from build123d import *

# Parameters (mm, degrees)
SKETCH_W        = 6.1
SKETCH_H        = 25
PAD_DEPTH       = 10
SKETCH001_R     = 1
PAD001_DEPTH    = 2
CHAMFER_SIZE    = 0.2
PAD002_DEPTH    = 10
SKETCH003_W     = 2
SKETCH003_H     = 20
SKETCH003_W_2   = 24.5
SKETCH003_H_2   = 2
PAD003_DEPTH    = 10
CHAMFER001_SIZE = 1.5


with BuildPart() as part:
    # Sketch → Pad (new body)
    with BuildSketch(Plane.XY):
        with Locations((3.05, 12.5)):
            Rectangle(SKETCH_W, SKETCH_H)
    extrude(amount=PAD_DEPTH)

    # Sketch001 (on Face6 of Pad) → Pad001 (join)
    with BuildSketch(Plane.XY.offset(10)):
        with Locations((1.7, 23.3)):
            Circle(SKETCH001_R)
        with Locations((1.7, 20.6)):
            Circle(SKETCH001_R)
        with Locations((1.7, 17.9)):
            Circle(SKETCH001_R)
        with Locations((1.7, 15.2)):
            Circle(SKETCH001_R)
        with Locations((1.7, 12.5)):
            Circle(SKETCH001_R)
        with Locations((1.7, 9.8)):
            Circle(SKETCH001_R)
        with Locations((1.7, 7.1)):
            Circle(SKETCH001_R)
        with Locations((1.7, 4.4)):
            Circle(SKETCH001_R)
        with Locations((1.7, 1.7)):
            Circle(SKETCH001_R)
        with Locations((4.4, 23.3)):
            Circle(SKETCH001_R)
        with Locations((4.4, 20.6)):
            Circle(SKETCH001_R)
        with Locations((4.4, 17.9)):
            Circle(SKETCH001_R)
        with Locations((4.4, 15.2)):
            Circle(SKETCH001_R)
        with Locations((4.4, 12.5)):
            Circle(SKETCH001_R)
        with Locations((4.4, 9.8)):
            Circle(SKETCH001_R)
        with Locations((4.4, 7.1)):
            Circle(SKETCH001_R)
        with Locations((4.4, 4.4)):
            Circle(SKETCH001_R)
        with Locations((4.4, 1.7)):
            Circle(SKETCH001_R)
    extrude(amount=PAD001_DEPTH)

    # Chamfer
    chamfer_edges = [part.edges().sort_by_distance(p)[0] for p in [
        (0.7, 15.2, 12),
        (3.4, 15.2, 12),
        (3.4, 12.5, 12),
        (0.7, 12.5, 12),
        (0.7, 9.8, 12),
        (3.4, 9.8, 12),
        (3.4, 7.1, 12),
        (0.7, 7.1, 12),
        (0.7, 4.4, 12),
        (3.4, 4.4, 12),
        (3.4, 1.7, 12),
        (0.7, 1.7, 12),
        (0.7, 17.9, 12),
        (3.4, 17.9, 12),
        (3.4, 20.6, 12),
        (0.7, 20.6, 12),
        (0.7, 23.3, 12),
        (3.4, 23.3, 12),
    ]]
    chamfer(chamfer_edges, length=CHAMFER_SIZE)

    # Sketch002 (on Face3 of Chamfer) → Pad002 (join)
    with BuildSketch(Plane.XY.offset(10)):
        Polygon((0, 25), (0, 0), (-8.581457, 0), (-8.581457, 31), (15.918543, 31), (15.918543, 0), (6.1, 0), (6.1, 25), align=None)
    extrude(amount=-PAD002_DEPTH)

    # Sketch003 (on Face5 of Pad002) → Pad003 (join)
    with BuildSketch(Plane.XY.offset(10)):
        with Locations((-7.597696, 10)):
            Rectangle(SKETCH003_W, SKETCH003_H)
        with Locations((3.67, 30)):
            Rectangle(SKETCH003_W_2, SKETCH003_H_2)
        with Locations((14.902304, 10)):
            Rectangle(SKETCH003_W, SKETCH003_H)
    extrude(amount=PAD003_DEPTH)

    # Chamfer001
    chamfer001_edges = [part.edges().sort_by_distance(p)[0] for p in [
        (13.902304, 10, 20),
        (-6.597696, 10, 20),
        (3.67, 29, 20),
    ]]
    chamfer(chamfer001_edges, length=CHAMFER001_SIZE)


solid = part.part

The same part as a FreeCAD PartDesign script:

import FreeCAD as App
import Part
import Sketcher
from FreeCAD import Vector
Q = App.Units.Quantity


def edges_at(feature, points):
    """Names of the edges that pass closest to the given points."""
    edges = feature.Shape.Edges
    near = lambda p: min(range(len(edges)), key=lambda i: edges[i].distToShape(Part.Vertex(*p))[0])
    return sorted({f"Edge{near(p) + 1}" for p in points})

doc = App.newDocument("Part")
body = doc.addObject("PartDesign::Body", "Body")

# Sketch on XY plane
sketch1 = doc.addObject("Sketcher::SketchObject", "Sketch")
body.addObject(sketch1)
sketch1.AttachmentSupport = (doc.XY_Plane, [""])
sketch1.MapMode = "FlatFace"
sketch1.addGeometry(Part.LineSegment(Vector(0, 25, 0), Vector(0, 0, 0)), False)
sketch1.addGeometry(Part.LineSegment(Vector(0, 0, 0), Vector(6.1, 0, 0)), False)
sketch1.addGeometry(Part.LineSegment(Vector(6.1, 0, 0), Vector(6.1, 25, 0)), False)
sketch1.addGeometry(Part.LineSegment(Vector(6.1, 25, 0), Vector(0, 25, 0)), False)
sketch1.addConstraint(Sketcher.Constraint("Coincident", 0, 2, 1, 1))
sketch1.addConstraint(Sketcher.Constraint("Coincident", 1, 2, 2, 1))
sketch1.addConstraint(Sketcher.Constraint("Coincident", 2, 2, 3, 1))
sketch1.addConstraint(Sketcher.Constraint("Coincident", 3, 2, 0, 1))
sketch1.addConstraint(Sketcher.Constraint("Vertical", 0))
sketch1.addConstraint(Sketcher.Constraint("Horizontal", 1))
sketch1.addConstraint(Sketcher.Constraint("Vertical", 2))
sketch1.addConstraint(Sketcher.Constraint("Horizontal", 3))
sketch1.addConstraint(Sketcher.Constraint("Coincident", 0, 2, -1, 1))
sketch1.addConstraint(Sketcher.Constraint("DistanceY", 0, 2, 0, 1, Q("25 mm")))
sketch1.addConstraint(Sketcher.Constraint("DistanceX", 1, 1, 1, 2, Q("6.1 mm")))
pad1 = doc.addObject("PartDesign::Pad", "Pad")
body.addObject(pad1)
pad1.Profile = sketch1
pad1.Length = 10

# Sketch on XY plane
sketch2 = doc.addObject("Sketcher::SketchObject", "Sketch001")
body.addObject(sketch2)
sketch2.AttachmentSupport = (doc.XY_Plane, [""])
sketch2.MapMode = "FlatFace"
sketch2.AttachmentOffset = App.Placement(Vector(0, 0, 10), App.Rotation())
sketch2.addGeometry(Part.Circle(Vector(1.7, 23.3, 0), Vector(0, 0, 1), 1), False)
sketch2.addGeometry(Part.Circle(Vector(1.7, 20.6, 0), Vector(0, 0, 1), 1), False)
sketch2.addGeometry(Part.Circle(Vector(1.7, 17.9, 0), Vector(0, 0, 1), 1), False)
sketch2.addGeometry(Part.Circle(Vector(1.7, 15.2, 0), Vector(0, 0, 1), 1), False)
sketch2.addGeometry(Part.Circle(Vector(1.7, 12.5, 0), Vector(0, 0, 1), 1), False)
sketch2.addGeometry(Part.Circle(Vector(1.7, 9.8, 0), Vector(0, 0, 1), 1), False)
sketch2.addGeometry(Part.Circle(Vector(1.7, 7.1, 0), Vector(0, 0, 1), 1), False)
sketch2.addGeometry(Part.Circle(Vector(1.7, 4.4, 0), Vector(0, 0, 1), 1), False)
sketch2.addGeometry(Part.Circle(Vector(1.7, 1.7, 0), Vector(0, 0, 1), 1), False)
sketch2.addGeometry(Part.Circle(Vector(4.4, 23.3, 0), Vector(0, 0, 1), 1), False)
sketch2.addGeometry(Part.Circle(Vector(4.4, 20.6, 0), Vector(0, 0, 1), 1), False)
sketch2.addGeometry(Part.Circle(Vector(4.4, 17.9, 0), Vector(0, 0, 1), 1), False)
sketch2.addGeometry(Part.Circle(Vector(4.4, 15.2, 0), Vector(0, 0, 1), 1), False)
sketch2.addGeometry(Part.Circle(Vector(4.4, 12.5, 0), Vector(0, 0, 1), 1), False)
sketch2.addGeometry(Part.Circle(Vector(4.4, 9.8, 0), Vector(0, 0, 1), 1), False)
sketch2.addGeometry(Part.Circle(Vector(4.4, 7.1, 0), Vector(0, 0, 1), 1), False)
sketch2.addGeometry(Part.Circle(Vector(4.4, 4.4, 0), Vector(0, 0, 1), 1), False)
sketch2.addGeometry(Part.Circle(Vector(4.4, 1.7, 0), Vector(0, 0, 1), 1), False)
sketch2.addConstraint(Sketcher.Constraint("Equal", 0, 1))
sketch2.addConstraint(Sketcher.Constraint("Equal", 1, 2))
sketch2.addConstraint(Sketcher.Constraint("Equal", 2, 3))
sketch2.addConstraint(Sketcher.Constraint("Equal", 3, 4))
sketch2.addConstraint(Sketcher.Constraint("Equal", 4, 5))
sketch2.addConstraint(Sketcher.Constraint("Equal", 5, 6))
sketch2.addConstraint(Sketcher.Constraint("Equal", 6, 7))
sketch2.addConstraint(Sketcher.Constraint("Equal", 7, 8))
sketch2.addConstraint(Sketcher.Constraint("Equal", 8, 9))
sketch2.addConstraint(Sketcher.Constraint("Equal", 9, 10))
sketch2.addConstraint(Sketcher.Constraint("Equal", 10, 11))
sketch2.addConstraint(Sketcher.Constraint("Equal", 11, 12))
sketch2.addConstraint(Sketcher.Constraint("Equal", 12, 13))
sketch2.addConstraint(Sketcher.Constraint("Equal", 13, 14))
sketch2.addConstraint(Sketcher.Constraint("Equal", 14, 15))
sketch2.addConstraint(Sketcher.Constraint("Equal", 15, 16))
sketch2.addConstraint(Sketcher.Constraint("Equal", 16, 17))
sketch2.addConstraint(Sketcher.Constraint("Horizontal", 0, 3, 9, 3))
sketch2.addConstraint(Sketcher.Constraint("Horizontal", 1, 3, 10, 3))
sketch2.addConstraint(Sketcher.Constraint("Horizontal", 2, 3, 11, 3))
sketch2.addConstraint(Sketcher.Constraint("Horizontal", 3, 3, 12, 3))
sketch2.addConstraint(Sketcher.Constraint("Horizontal", 4, 3, 13, 3))
sketch2.addConstraint(Sketcher.Constraint("Horizontal", 5, 3, 14, 3))
sketch2.addConstraint(Sketcher.Constraint("Horizontal", 6, 3, 15, 3))
sketch2.addConstraint(Sketcher.Constraint("Horizontal", 7, 3, 16, 3))
sketch2.addConstraint(Sketcher.Constraint("Horizontal", 8, 3, 17, 3))
sketch2.addConstraint(Sketcher.Constraint("Vertical", 0, 3, 1, 3))
sketch2.addConstraint(Sketcher.Constraint("Vertical", 1, 3, 2, 3))
sketch2.addConstraint(Sketcher.Constraint("Vertical", 2, 3, 3, 3))
sketch2.addConstraint(Sketcher.Constraint("Vertical", 3, 3, 4, 3))
sketch2.addConstraint(Sketcher.Constraint("Vertical", 4, 3, 5, 3))
sketch2.addConstraint(Sketcher.Constraint("Vertical", 5, 3, 6, 3))
sketch2.addConstraint(Sketcher.Constraint("Vertical", 6, 3, 7, 3))
sketch2.addConstraint(Sketcher.Constraint("Vertical", 7, 3, 8, 3))
sketch2.addConstraint(Sketcher.Constraint("Vertical", 9, 3, 10, 3))
sketch2.addConstraint(Sketcher.Constraint("Vertical", 10, 3, 11, 3))
sketch2.addConstraint(Sketcher.Constraint("Vertical", 11, 3, 12, 3))
sketch2.addConstraint(Sketcher.Constraint("Vertical", 12, 3, 13, 3))
sketch2.addConstraint(Sketcher.Constraint("Vertical", 13, 3, 14, 3))
sketch2.addConstraint(Sketcher.Constraint("Vertical", 14, 3, 15, 3))
sketch2.addConstraint(Sketcher.Constraint("Vertical", 15, 3, 16, 3))
sketch2.addConstraint(Sketcher.Constraint("Vertical", 16, 3, 17, 3))
sketch2.addConstraint(Sketcher.Constraint("Diameter", 0, Q("2 mm")))
sketch2.addConstraint(Sketcher.Constraint("DistanceX", -1, 1, 0, 3, Q("1.7 mm")))
sketch2.addConstraint(Sketcher.Constraint("DistanceY", -1, 1, 0, 3, Q("23.3 mm")))
sketch2.addConstraint(Sketcher.Constraint("DistanceY", -1, 1, 1, 3, Q("20.6 mm")))
sketch2.addConstraint(Sketcher.Constraint("DistanceY", -1, 1, 2, 3, Q("17.9 mm")))
sketch2.addConstraint(Sketcher.Constraint("DistanceY", -1, 1, 3, 3, Q("15.2 mm")))
sketch2.addConstraint(Sketcher.Constraint("DistanceY", -1, 1, 4, 3, Q("12.5 mm")))
sketch2.addConstraint(Sketcher.Constraint("DistanceY", -1, 1, 5, 3, Q("9.8 mm")))
sketch2.addConstraint(Sketcher.Constraint("DistanceY", -1, 1, 6, 3, Q("7.1 mm")))
sketch2.addConstraint(Sketcher.Constraint("DistanceY", -1, 1, 7, 3, Q("4.4 mm")))
sketch2.addConstraint(Sketcher.Constraint("DistanceY", -1, 1, 8, 3, Q("1.7 mm")))
sketch2.addConstraint(Sketcher.Constraint("DistanceX", -1, 1, 9, 3, Q("4.4 mm")))
pad2 = doc.addObject("PartDesign::Pad", "Pad001")
body.addObject(pad2)
pad2.Profile = sketch2
pad2.Length = 2
doc.recompute()

chamfer = doc.addObject("PartDesign::Chamfer", "Chamfer")
body.addObject(chamfer)
chamfer.Base = (pad2, edges_at(pad2, [
    (0.7, 15.2, 12),
    (3.4, 15.2, 12),
    (3.4, 12.5, 12),
    (0.7, 12.5, 12),
    (0.7, 9.8, 12),
    (3.4, 9.8, 12),
    (3.4, 7.1, 12),
    (0.7, 7.1, 12),
    (0.7, 4.4, 12),
    (3.4, 4.4, 12),
    (3.4, 1.7, 12),
    (0.7, 1.7, 12),
    (0.7, 17.9, 12),
    (3.4, 17.9, 12),
    (3.4, 20.6, 12),
    (0.7, 20.6, 12),
    (0.7, 23.3, 12),
    (3.4, 23.3, 12),
]))
chamfer.Size = 0.2

# Sketch on XY plane
sketch3 = doc.addObject("Sketcher::SketchObject", "Sketch002")
body.addObject(sketch3)
sketch3.AttachmentSupport = (doc.XY_Plane, [""])
sketch3.MapMode = "FlatFace"
sketch3.AttachmentOffset = App.Placement(Vector(0, 0, 10), App.Rotation())
sketch3.addGeometry(Part.LineSegment(Vector(0, 0, 0), Vector(0, 25, 0)), False)
sketch3.addGeometry(Part.LineSegment(Vector(0, 25, 0), Vector(6.1, 25, 0)), False)
sketch3.addGeometry(Part.LineSegment(Vector(6.1, 25, 0), Vector(6.1, 0, 0)), False)
sketch3.addGeometry(Part.LineSegment(Vector(6.1, 0, 0), Vector(15.918543, 0, 0)), False)
sketch3.addGeometry(Part.LineSegment(Vector(15.918543, 0, 0), Vector(15.918543, 31, 0)), False)
sketch3.addGeometry(Part.LineSegment(Vector(15.918543, 31, 0), Vector(-8.581457, 31, 0)), False)
sketch3.addGeometry(Part.LineSegment(Vector(-8.581457, 31, 0), Vector(-8.581457, 0, 0)), False)
sketch3.addGeometry(Part.LineSegment(Vector(-8.581457, 0, 0), Vector(0, 0, 0)), False)
sketch3.addConstraint(Sketcher.Constraint("Coincident", 0, 2, 1, 1))
sketch3.addConstraint(Sketcher.Constraint("Coincident", 1, 2, 2, 1))
sketch3.addConstraint(Sketcher.Constraint("Coincident", 2, 2, 3, 1))
sketch3.addConstraint(Sketcher.Constraint("Coincident", 3, 2, 4, 1))
sketch3.addConstraint(Sketcher.Constraint("Coincident", 4, 2, 5, 1))
sketch3.addConstraint(Sketcher.Constraint("Coincident", 5, 2, 6, 1))
sketch3.addConstraint(Sketcher.Constraint("Coincident", 6, 2, 7, 1))
sketch3.addConstraint(Sketcher.Constraint("Coincident", 7, 2, 0, 1))
sketch3.addConstraint(Sketcher.Constraint("Vertical", 0))
sketch3.addConstraint(Sketcher.Constraint("Horizontal", 1))
sketch3.addConstraint(Sketcher.Constraint("Vertical", 2))
sketch3.addConstraint(Sketcher.Constraint("Horizontal", 3))
sketch3.addConstraint(Sketcher.Constraint("Vertical", 4))
sketch3.addConstraint(Sketcher.Constraint("Horizontal", 5))
sketch3.addConstraint(Sketcher.Constraint("Vertical", 6))
sketch3.addConstraint(Sketcher.Constraint("Horizontal", 7))
sketch3.addConstraint(Sketcher.Constraint("Coincident", 7, 2, -1, 1))
sketch3.addConstraint(Sketcher.Constraint("PointOnObject", 2, 2, -1))
sketch3.addConstraint(Sketcher.Constraint("DistanceY", 0, 1, 0, 2, Q("25 mm")))
sketch3.addConstraint(Sketcher.Constraint("DistanceY", 4, 1, 4, 2, Q("31 mm")))
sketch3.addConstraint(Sketcher.Constraint("DistanceX", 1, 1, 1, 2, Q("6.1 mm")))
sketch3.addConstraint(Sketcher.Constraint("DistanceX", 5, 2, 5, 1, Q("24.5 mm")))
sketch3.addConstraint(Sketcher.Constraint("DistanceX", 3, 1, 3, 2, Q("9.818543 mm")))
pad3 = doc.addObject("PartDesign::Pad", "Pad002")
body.addObject(pad3)
pad3.Profile = sketch3
pad3.Length = 10
pad3.Reversed = True

# Sketch on XY plane
sketch4 = doc.addObject("Sketcher::SketchObject", "Sketch003")
body.addObject(sketch4)
sketch4.AttachmentSupport = (doc.XY_Plane, [""])
sketch4.MapMode = "FlatFace"
sketch4.AttachmentOffset = App.Placement(Vector(0, 0, 10), App.Rotation())
sketch4.addGeometry(Part.LineSegment(Vector(-8.597696, 20, 0), Vector(-8.597696, 0, 0)), False)
sketch4.addGeometry(Part.LineSegment(Vector(-8.597696, 0, 0), Vector(-6.597696, 0, 0)), False)
sketch4.addGeometry(Part.LineSegment(Vector(-6.597696, 0, 0), Vector(-6.597696, 20, 0)), False)
sketch4.addGeometry(Part.LineSegment(Vector(-6.597696, 20, 0), Vector(-8.597696, 20, 0)), False)
sketch4.addGeometry(Part.LineSegment(Vector(-8.58, 31, 0), Vector(-8.58, 29, 0)), False)
sketch4.addGeometry(Part.LineSegment(Vector(-8.58, 29, 0), Vector(15.92, 29, 0)), False)
sketch4.addGeometry(Part.LineSegment(Vector(15.92, 29, 0), Vector(15.92, 31, 0)), False)
sketch4.addGeometry(Part.LineSegment(Vector(15.92, 31, 0), Vector(-8.58, 31, 0)), False)
sketch4.addGeometry(Part.LineSegment(Vector(13.902304, 20, 0), Vector(13.902304, 0, 0)), False)
sketch4.addGeometry(Part.LineSegment(Vector(13.902304, 0, 0), Vector(15.902304, 0, 0)), False)
sketch4.addGeometry(Part.LineSegment(Vector(15.902304, 0, 0), Vector(15.902304, 20, 0)), False)
sketch4.addGeometry(Part.LineSegment(Vector(15.902304, 20, 0), Vector(13.902304, 20, 0)), False)
sketch4.addConstraint(Sketcher.Constraint("Coincident", 0, 2, 1, 1))
sketch4.addConstraint(Sketcher.Constraint("Coincident", 1, 2, 2, 1))
sketch4.addConstraint(Sketcher.Constraint("Coincident", 2, 2, 3, 1))
sketch4.addConstraint(Sketcher.Constraint("Coincident", 3, 2, 0, 1))
sketch4.addConstraint(Sketcher.Constraint("Coincident", 4, 2, 5, 1))
sketch4.addConstraint(Sketcher.Constraint("Coincident", 5, 2, 6, 1))
sketch4.addConstraint(Sketcher.Constraint("Coincident", 6, 2, 7, 1))
sketch4.addConstraint(Sketcher.Constraint("Coincident", 7, 2, 4, 1))
sketch4.addConstraint(Sketcher.Constraint("Coincident", 8, 2, 9, 1))
sketch4.addConstraint(Sketcher.Constraint("Coincident", 9, 2, 10, 1))
sketch4.addConstraint(Sketcher.Constraint("Coincident", 10, 2, 11, 1))
sketch4.addConstraint(Sketcher.Constraint("Coincident", 11, 2, 8, 1))
sketch4.addConstraint(Sketcher.Constraint("Vertical", 0))
sketch4.addConstraint(Sketcher.Constraint("Horizontal", 1))
sketch4.addConstraint(Sketcher.Constraint("Vertical", 2))
sketch4.addConstraint(Sketcher.Constraint("Horizontal", 3))
sketch4.addConstraint(Sketcher.Constraint("Vertical", 4))
sketch4.addConstraint(Sketcher.Constraint("Horizontal", 5))
sketch4.addConstraint(Sketcher.Constraint("Vertical", 6))
sketch4.addConstraint(Sketcher.Constraint("Horizontal", 7))
sketch4.addConstraint(Sketcher.Constraint("Vertical", 8))
sketch4.addConstraint(Sketcher.Constraint("Horizontal", 9))
sketch4.addConstraint(Sketcher.Constraint("Vertical", 10))
sketch4.addConstraint(Sketcher.Constraint("Horizontal", 11))
sketch4.addConstraint(Sketcher.Constraint("PointOnObject", 0, 2, -1))
sketch4.addConstraint(Sketcher.Constraint("PointOnObject", 8, 2, -1))
sketch4.addConstraint(Sketcher.Constraint("Horizontal", 3, 2, 10, 2))
sketch4.addConstraint(Sketcher.Constraint("Equal", 3, 9))
sketch4.addConstraint(Sketcher.Constraint("Equal", 11, 4))
sketch4.addConstraint(Sketcher.Constraint("DistanceX", 1, 1, 1, 2, Q("2 mm")))
sketch4.addConstraint(Sketcher.Constraint("DistanceY", 0, 2, 0, 1, Q("20 mm")))
sketch4.addConstraint(Sketcher.Constraint("DistanceX", 5, 1, 5, 2, Q("24.5 mm")))
sketch4.addConstraint(Sketcher.Constraint("DistanceY", -1, 1, 4, 2, Q("29 mm")))
sketch4.addConstraint(Sketcher.Constraint("DistanceX", 1, 2, 8, 2, Q("20.5 mm")))
sketch4.addConstraint(Sketcher.Constraint("DistanceX", 4, 2, -1, 1, Q("8.58 mm")))
sketch4.addConstraint(Sketcher.Constraint("DistanceX", 0, 2, -1, 1, Q("8.597696 mm")))
pad4 = doc.addObject("PartDesign::Pad", "Pad003")
body.addObject(pad4)
pad4.Profile = sketch4
pad4.Length = 10
doc.recompute()

chamfer2 = doc.addObject("PartDesign::Chamfer", "Chamfer001")
body.addObject(chamfer2)
chamfer2.Base = (pad4, edges_at(pad4, [(13.902, 10, 20), (-6.598, 10, 20), (3.67, 29, 20)]))
chamfer2.Size = 1.5

doc.recompute()
